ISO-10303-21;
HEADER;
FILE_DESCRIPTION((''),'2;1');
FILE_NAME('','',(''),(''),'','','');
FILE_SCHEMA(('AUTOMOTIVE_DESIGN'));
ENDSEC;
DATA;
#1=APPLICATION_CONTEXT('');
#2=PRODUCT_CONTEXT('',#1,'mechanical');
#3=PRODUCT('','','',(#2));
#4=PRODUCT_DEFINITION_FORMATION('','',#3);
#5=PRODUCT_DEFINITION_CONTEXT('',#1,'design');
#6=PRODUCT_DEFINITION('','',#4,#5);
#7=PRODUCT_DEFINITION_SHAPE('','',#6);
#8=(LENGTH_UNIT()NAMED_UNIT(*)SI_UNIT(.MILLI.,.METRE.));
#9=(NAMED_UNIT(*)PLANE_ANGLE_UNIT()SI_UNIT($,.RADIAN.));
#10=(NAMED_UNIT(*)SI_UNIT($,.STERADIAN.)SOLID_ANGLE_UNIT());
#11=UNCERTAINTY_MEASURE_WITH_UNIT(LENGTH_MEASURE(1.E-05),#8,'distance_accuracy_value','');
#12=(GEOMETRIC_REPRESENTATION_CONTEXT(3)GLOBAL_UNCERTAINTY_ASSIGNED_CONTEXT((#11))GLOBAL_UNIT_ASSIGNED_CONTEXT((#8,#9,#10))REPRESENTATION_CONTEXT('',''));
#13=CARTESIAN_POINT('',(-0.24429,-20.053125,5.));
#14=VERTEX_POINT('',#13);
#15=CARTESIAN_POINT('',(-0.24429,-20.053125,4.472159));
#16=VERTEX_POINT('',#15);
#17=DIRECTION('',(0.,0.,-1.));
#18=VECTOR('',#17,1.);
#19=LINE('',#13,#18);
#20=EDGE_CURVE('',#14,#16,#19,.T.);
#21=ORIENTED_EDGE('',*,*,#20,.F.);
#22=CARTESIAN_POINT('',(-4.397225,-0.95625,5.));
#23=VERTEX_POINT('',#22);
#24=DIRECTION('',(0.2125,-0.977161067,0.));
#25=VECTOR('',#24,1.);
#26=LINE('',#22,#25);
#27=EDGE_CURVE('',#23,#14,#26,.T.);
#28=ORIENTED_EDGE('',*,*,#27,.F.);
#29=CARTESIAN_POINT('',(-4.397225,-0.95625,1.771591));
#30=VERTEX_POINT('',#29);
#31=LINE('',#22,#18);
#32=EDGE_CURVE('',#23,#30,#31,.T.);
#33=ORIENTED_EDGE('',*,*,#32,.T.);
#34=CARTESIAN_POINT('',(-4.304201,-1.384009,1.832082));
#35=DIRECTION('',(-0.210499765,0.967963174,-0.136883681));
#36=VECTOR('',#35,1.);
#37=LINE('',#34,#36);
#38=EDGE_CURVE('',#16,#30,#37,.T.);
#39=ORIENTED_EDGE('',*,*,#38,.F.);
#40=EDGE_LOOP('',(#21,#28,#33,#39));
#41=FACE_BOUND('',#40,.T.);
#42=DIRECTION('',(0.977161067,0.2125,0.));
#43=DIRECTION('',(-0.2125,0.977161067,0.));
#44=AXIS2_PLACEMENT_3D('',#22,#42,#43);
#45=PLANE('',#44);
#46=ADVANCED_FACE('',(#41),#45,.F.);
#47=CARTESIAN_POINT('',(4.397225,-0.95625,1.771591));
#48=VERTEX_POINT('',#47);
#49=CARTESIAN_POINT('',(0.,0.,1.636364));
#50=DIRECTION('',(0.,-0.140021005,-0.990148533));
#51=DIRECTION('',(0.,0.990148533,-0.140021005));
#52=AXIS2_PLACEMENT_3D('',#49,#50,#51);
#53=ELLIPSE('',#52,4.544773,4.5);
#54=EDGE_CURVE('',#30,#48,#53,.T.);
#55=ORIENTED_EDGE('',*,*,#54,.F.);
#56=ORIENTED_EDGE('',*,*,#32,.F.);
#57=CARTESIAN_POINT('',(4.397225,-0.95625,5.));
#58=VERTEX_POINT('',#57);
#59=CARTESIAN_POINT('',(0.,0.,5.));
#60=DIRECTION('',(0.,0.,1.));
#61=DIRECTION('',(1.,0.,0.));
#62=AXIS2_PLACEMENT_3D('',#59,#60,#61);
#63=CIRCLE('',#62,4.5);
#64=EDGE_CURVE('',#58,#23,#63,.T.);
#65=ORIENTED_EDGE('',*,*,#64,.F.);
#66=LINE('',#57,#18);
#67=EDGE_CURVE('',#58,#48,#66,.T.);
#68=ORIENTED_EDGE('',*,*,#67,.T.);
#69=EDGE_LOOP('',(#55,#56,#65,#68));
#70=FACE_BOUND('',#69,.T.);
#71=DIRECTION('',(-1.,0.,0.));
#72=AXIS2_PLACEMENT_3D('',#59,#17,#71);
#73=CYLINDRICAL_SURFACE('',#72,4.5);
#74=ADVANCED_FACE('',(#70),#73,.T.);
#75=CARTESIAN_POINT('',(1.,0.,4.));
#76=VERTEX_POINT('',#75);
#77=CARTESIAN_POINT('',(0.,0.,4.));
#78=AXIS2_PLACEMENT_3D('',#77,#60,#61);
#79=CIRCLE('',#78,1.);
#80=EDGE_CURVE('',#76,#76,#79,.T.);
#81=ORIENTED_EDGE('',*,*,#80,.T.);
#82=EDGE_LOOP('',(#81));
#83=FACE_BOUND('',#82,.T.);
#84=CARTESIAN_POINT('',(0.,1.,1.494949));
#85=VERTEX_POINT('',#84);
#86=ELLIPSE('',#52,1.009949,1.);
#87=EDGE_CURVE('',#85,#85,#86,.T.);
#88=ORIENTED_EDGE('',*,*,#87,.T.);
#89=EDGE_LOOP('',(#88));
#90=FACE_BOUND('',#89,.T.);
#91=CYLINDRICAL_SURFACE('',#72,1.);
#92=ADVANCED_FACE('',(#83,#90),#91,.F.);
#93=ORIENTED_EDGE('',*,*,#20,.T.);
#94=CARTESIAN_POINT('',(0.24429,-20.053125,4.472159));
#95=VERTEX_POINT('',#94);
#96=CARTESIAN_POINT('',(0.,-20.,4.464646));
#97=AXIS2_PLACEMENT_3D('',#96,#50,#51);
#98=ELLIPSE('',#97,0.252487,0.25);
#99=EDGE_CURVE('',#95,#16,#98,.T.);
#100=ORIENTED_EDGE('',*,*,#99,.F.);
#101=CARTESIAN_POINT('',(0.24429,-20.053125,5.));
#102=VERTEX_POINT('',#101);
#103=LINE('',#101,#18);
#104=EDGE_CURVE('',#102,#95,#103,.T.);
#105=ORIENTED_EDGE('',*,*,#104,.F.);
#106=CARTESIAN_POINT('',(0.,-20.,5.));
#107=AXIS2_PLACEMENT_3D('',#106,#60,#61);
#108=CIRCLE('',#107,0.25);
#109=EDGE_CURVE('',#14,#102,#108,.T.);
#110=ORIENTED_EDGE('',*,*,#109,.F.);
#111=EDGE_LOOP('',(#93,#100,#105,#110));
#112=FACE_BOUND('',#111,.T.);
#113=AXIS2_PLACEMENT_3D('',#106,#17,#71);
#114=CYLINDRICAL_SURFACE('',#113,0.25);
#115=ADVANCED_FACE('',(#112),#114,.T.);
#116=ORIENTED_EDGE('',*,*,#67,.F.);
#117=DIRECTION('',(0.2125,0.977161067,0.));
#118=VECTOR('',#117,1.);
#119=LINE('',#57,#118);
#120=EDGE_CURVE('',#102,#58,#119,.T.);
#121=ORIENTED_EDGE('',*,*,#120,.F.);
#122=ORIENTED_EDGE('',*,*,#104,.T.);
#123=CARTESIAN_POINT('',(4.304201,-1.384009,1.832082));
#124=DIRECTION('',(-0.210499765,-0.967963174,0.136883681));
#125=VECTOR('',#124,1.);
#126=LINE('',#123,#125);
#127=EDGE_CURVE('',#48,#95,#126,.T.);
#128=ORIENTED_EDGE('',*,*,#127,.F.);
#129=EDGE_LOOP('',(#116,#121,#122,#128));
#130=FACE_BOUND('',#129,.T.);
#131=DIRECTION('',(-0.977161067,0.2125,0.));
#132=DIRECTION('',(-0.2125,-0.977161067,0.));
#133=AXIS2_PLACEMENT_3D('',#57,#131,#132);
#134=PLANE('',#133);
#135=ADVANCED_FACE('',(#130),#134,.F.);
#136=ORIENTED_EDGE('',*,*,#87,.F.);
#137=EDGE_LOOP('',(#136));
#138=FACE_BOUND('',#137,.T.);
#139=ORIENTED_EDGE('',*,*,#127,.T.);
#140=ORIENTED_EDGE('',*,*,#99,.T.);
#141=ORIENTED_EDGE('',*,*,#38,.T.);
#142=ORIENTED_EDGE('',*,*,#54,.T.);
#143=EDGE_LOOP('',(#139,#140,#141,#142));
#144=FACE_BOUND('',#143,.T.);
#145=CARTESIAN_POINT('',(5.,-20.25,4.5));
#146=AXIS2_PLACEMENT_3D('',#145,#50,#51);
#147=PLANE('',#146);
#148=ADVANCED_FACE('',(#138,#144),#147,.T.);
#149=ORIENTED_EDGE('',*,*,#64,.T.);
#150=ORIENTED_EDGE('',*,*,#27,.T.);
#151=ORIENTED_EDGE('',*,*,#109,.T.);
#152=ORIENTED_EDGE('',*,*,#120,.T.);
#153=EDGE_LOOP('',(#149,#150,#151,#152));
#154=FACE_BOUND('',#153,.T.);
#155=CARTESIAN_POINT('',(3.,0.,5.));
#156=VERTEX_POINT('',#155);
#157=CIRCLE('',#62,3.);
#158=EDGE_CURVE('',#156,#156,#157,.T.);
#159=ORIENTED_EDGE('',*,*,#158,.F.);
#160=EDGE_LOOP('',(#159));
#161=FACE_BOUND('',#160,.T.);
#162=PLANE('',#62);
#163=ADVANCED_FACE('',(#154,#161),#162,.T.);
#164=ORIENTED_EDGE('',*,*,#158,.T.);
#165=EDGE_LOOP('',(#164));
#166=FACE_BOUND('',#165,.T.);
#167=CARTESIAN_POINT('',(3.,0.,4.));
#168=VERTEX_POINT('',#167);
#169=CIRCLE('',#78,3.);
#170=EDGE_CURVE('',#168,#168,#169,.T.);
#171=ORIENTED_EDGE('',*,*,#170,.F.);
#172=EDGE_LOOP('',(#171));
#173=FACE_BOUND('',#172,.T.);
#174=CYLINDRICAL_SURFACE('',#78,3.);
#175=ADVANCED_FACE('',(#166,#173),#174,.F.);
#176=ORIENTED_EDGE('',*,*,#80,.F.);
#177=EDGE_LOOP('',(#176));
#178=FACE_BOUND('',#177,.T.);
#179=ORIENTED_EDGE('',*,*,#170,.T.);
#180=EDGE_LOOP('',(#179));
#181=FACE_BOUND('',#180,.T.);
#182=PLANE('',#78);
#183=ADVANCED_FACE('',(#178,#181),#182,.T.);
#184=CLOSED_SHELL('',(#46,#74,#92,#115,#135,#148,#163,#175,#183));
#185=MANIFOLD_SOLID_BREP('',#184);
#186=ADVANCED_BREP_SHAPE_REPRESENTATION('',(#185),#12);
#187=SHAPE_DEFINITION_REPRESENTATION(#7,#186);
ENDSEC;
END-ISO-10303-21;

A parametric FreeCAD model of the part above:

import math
import FreeCAD as App
import Part
import Sketcher

V = App.Vector


def add_polygon(sketch, points):
    """Adds a closed chain of lines whose ends are joined by coincident constraints."""
    first, n = sketch.GeometryCount, len(points)
    for a, b in zip(points, points[1:] + points[:1]):
        sketch.addGeometry(Part.LineSegment(App.Vector(*a, 0), App.Vector(*b, 0)), False)
    for i in range(n):
        sketch.addConstraint(Sketcher.Constraint("Coincident", first + i, 2, first + (i + 1) % n, 1))

doc = App.newDocument("Part")
params = doc.addObject("Spreadsheet::Sheet", "Params")
for row, (alias, value) in enumerate([
    ("sketch1_diameter", "2 mm"),
    ("sketch1_radius", "4.5 mm"),
    ("sketch1_radius2", "0.25 mm"),
    ("pad1_length", "5 mm"),
    ("sketch2_height", "1 mm"),
    ("sketch2_height2", "4.5 mm"),
    ("sketch2_width", "24.75 mm"),
    ("sketch3_diameter", "6 mm"),
    ("pocket2_length", "1 mm"),
], start=1):
    params.set(f"A{row}", alias)
    params.set(f"B{row}", "=" + value)
    params.setAlias(f"B{row}", alias)

body = doc.addObject("PartDesign::Body", "Body")

sketch1 = body.newObject("Sketcher::SketchObject", "Sketch")
sketch1.AttachmentSupport = (doc.getObject("XY_Plane"), [""])
sketch1.MapMode = "FlatFace"
sketch1.addGeometry(Part.LineSegment(V(0.24, -20.05, 0), V(4.4, -0.96, 0)), False)
sketch1.addGeometry(Part.ArcOfCircle(Part.Circle(V(0, 0, 0), V(0, 0, 1), 4.5), math.radians(-12), math.radians(192)), False)
sketch1.addGeometry(Part.LineSegment(V(-4.4, -0.96, 0), V(-0.24, -20.05, 0)), False)
sketch1.addGeometry(Part.ArcOfCircle(Part.Circle(V(0, -20, 0), V(0, 0, 1), 0.25), math.radians(-168), math.radians(-12)), False)
sketch1.addGeometry(Part.Circle(V(0, 0, 0), V(0, 0, 1), 1), False)
sketch1.addConstraint(Sketcher.Constraint("Tangent", 0, 2, 1, 1))
sketch1.addConstraint(Sketcher.Constraint("Tangent", 1, 2, 2, 1))
sketch1.addConstraint(Sketcher.Constraint("Tangent", 2, 2, 3, 1))
sketch1.addConstraint(Sketcher.Constraint("Tangent", 3, 2, 0, 1))
sketch1.addConstraint(Sketcher.Constraint("Coincident", 1, 3, -1, 1))
sketch1.addConstraint(Sketcher.Constraint("Coincident", 4, 3, -1, 1))
sketch1.addConstraint(Sketcher.Constraint("PointOnObject", 3, 3, -2))
sketch1.addConstraint(Sketcher.Constraint("Diameter", 4, 2.0))
sketch1.addConstraint(Sketcher.Constraint("Radius", 1, 4.5))
sketch1.addConstraint(Sketcher.Constraint("Radius", 3, 0.25))
sketch1.addConstraint(Sketcher.Constraint("DistanceY", 3, 3, -1, 1, 20.0))
sketch1.setExpression("Constraints[7]", "Params.sketch1_diameter")
sketch1.setExpression("Constraints[8]", "Params.sketch1_radius")
sketch1.setExpression("Constraints[9]", "Params.sketch1_radius2")
pad1 = body.newObject("PartDesign::Pad", "Pad")
pad1.Profile = sketch1
pad1.setExpression("Length", "Params.pad1_length")

sketch2 = body.newObject("Sketcher::SketchObject", "Sketch001")
sketch2.AttachmentSupport = (doc.getObject("YZ_Plane"), [""])
sketch2.MapMode = "FlatFace"
add_polygon(sketch2, [(-20.2, 0), (4.5, 0), (4.5, 1), (-20.2, 4.5)])
sketch2.addConstraint(Sketcher.Constraint("Horizontal", 0))
sketch2.addConstraint(Sketcher.Constraint("Vertical", 1))
sketch2.addConstraint(Sketcher.Constraint("Vertical", 3))
sketch2.addConstraint(Sketcher.Constraint("PointOnObject", 0, 2, -1))
sketch2.addConstraint(Sketcher.Constraint("DistanceY", 1, 1, 1, 2, 1.0))
sketch2.addConstraint(Sketcher.Constraint("DistanceY", 3, 2, 3, 1, 4.5))
sketch2.addConstraint(Sketcher.Constraint("DistanceX", 0, 1, 0, 2, 24.75))
sketch2.addConstraint(Sketcher.Constraint("DistanceX", -1, 1, 0, 2, 4.5))
sketch2.setExpression("Constraints[8]", "Params.sketch2_height")
sketch2.setExpression("Constraints[9]", "Params.sketch2_height2")
sketch2.setExpression("Constraints[10]", "Params.sketch2_width")
pocket1 = body.newObject("PartDesign::Pocket", "Pocket")
pocket1.Profile = sketch2
pocket1.Type = "ThroughAll"
pocket1.Midplane = True

sketch3 = body.newObject("Sketcher::SketchObject", "Sketch002")
sketch3.AttachmentSupport = (doc.getObject("XY_Plane"), [""])
sketch3.MapMode = "FlatFace"
sketch3.AttachmentOffset = App.Placement(V(0, 0, 5), App.Rotation())
sketch3.addGeometry(Part.Circle(V(0, 0, 0), V(0, 0, 1), 3), False)
sketch3.addConstraint(Sketcher.Constraint("Coincident", 0, 3, -1, 1))
sketch3.addConstraint(Sketcher.Constraint("Diameter", 0, 6.0))
sketch3.setExpression("Constraints[1]", "Params.sketch3_diameter")
pocket2 = body.newObject("PartDesign::Pocket", "Pocket001")
pocket2.Profile = sketch3
pocket2.setExpression("Length", "Params.pocket2_length")

doc.recompute()
